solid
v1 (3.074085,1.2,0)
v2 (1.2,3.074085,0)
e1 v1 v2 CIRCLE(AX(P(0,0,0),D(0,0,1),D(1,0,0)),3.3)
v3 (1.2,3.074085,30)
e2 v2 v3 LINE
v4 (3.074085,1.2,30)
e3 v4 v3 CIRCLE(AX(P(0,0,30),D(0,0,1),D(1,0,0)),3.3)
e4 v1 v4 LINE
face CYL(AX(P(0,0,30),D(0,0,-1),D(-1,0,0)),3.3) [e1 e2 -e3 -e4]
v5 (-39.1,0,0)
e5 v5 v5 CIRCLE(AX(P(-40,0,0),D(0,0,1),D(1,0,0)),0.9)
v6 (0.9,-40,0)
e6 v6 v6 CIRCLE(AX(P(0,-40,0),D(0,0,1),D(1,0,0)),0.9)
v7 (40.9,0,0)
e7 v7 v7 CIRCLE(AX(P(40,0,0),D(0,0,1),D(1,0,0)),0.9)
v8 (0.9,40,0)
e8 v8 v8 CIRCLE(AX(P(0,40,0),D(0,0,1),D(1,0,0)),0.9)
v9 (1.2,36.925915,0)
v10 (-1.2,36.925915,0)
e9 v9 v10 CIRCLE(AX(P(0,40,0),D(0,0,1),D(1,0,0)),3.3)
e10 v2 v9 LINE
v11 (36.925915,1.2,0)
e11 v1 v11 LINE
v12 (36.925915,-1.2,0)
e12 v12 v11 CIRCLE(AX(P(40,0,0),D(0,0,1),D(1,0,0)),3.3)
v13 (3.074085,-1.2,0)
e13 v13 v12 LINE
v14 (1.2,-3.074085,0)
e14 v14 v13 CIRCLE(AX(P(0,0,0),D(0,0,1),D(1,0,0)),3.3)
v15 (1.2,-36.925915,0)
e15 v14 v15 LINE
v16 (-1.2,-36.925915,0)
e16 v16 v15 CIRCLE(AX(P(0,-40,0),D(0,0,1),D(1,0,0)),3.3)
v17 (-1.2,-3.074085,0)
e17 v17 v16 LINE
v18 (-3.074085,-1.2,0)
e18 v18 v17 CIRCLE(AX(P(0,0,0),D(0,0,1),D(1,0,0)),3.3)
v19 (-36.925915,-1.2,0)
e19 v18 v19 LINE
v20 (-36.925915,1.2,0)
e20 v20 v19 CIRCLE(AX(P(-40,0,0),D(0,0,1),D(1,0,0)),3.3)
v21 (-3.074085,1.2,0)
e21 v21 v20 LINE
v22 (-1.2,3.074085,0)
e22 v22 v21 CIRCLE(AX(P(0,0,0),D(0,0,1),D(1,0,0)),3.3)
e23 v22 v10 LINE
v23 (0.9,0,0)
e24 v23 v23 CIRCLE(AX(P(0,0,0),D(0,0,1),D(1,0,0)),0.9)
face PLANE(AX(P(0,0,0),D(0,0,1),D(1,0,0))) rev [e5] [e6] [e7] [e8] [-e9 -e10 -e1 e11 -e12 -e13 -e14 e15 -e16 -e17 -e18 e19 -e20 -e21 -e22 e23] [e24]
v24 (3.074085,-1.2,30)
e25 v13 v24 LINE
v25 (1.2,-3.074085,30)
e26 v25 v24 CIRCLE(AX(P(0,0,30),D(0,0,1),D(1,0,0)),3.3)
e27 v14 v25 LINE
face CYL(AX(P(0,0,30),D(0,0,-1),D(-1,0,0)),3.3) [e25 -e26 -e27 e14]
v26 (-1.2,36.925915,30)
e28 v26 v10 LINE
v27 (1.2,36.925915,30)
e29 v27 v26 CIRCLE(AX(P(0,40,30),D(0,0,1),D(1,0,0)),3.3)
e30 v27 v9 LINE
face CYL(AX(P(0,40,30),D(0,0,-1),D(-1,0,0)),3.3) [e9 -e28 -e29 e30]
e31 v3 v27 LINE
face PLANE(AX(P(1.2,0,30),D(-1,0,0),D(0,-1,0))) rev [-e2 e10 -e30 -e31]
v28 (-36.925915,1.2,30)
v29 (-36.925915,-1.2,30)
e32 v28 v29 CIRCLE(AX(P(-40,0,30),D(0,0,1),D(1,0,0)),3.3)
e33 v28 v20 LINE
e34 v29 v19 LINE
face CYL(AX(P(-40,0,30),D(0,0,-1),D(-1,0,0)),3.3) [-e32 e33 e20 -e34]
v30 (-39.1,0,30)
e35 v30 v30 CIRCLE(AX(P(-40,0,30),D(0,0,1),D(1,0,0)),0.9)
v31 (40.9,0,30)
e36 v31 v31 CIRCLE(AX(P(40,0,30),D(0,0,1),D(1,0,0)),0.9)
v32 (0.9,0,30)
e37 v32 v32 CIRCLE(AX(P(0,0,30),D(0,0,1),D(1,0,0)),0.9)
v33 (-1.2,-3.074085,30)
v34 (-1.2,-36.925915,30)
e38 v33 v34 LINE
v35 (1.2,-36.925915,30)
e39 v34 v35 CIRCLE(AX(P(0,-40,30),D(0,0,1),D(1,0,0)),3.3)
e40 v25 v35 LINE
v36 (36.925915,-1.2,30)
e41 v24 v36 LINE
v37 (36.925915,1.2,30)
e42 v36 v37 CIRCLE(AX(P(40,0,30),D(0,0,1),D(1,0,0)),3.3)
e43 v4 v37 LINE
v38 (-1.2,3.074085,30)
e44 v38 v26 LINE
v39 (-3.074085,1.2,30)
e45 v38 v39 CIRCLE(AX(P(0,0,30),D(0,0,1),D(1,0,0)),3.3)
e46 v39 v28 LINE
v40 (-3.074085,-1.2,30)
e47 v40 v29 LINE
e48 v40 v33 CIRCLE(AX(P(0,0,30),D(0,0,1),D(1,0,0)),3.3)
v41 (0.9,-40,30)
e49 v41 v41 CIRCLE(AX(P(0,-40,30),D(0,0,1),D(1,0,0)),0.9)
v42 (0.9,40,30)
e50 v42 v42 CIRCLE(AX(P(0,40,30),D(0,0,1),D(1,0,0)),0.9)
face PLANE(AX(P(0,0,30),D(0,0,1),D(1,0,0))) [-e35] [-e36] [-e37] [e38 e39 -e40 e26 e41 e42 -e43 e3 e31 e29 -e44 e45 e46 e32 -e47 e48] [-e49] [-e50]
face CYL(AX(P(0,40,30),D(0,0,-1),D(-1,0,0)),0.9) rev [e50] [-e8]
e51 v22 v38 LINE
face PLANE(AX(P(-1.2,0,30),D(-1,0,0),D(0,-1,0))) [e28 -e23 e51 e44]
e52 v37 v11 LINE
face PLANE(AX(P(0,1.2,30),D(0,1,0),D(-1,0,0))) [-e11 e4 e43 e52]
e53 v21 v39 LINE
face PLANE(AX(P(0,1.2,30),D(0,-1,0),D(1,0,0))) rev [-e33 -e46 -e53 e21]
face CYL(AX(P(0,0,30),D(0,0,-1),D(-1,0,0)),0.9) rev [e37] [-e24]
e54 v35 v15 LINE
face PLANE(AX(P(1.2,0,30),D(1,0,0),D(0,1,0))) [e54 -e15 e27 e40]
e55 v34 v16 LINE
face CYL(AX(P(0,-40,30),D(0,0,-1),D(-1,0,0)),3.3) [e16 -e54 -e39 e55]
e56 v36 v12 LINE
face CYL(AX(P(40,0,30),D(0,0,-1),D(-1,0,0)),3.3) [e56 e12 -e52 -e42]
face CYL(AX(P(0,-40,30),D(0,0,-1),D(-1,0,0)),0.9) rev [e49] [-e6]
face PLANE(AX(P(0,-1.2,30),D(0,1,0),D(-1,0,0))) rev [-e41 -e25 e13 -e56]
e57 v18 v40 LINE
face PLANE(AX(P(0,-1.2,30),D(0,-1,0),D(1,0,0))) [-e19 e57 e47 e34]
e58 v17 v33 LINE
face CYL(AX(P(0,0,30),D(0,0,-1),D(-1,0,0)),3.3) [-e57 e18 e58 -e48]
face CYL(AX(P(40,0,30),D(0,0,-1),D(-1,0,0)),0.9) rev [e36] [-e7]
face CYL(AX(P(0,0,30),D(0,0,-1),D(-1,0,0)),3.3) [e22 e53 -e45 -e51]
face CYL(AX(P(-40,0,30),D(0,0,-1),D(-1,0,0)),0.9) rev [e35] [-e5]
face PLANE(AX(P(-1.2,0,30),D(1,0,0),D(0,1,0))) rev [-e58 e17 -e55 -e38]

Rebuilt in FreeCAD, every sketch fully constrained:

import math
import FreeCAD as App
import Part
import Sketcher
Q = App.Units.Quantity

doc = App.newDocument("Part")
params = doc.addObject("Spreadsheet::Sheet", "Params")
for row, (alias, value) in enumerate([
    ("sketch1_radius", "3.3 mm"),
    ("pad1_length", "30 mm"),
    ("sketch2_diameter", "1.8 mm"),
    ("pocket1_length", "30 mm"),
], start=1):
    params.set(f"A{row}", alias)
    params.set(f"B{row}", "=" + value)
    params.setAlias(f"B{row}", alias)

body = doc.addObject("PartDesign::Body", "Body")

sketch1 = doc.addObject("Sketcher::SketchObject", "Sketch")
body.addObject(sketch1)
sketch1.AttachmentSupport = (doc.XY_Plane, [""])
sketch1.MapMode = "FlatFace"
sketch1.addGeometry([
    Part.ArcOfCircle(Part.Circle(App.Vector(0, 0, 0), App.Vector(0, 0, 1), 3.3), math.radians(-158.676314), math.radians(-111.323686)),
    Part.LineSegment(App.Vector(-1.2, -3.074085, 0), App.Vector(-1.2, -36.925915, 0)),
    Part.ArcOfCircle(Part.Circle(App.Vector(0, -40, 0), App.Vector(0, 0, 1), 3.3), math.radians(111.323686), math.radians(360)),
    Part.ArcOfCircle(Part.Circle(App.Vector(0, -40, 0), App.Vector(0, 0, 1), 3.3), math.radians(0), math.radians(68.676314)),
    Part.LineSegment(App.Vector(1.2, -36.925915, 0), App.Vector(1.2, -3.074085, 0)),
    Part.ArcOfCircle(Part.Circle(App.Vector(0, 0, 0), App.Vector(0, 0, 1), 3.3), math.radians(-68.676314), math.radians(-21.323686)),
    Part.LineSegment(App.Vector(3.074085, -1.2, 0), App.Vector(36.925915, -1.2, 0)),
    Part.ArcOfCircle(Part.Circle(App.Vector(40, 0, 0), App.Vector(0, 0, 1), 3.3), math.radians(-158.676314), math.radians(0)),
    Part.ArcOfCircle(Part.Circle(App.Vector(40, 0, 0), App.Vector(0, 0, 1), 3.3), math.radians(0), math.radians(158.676314)),
    Part.LineSegment(App.Vector(36.925915, 1.2, 0), App.Vector(3.074085, 1.2, 0)),
    Part.ArcOfCircle(Part.Circle(App.Vector(0, 0, 0), App.Vector(0, 0, 1), 3.3), math.radians(21.323686), math.radians(68.676314)),
    Part.LineSegment(App.Vector(1.2, 3.074085, 0), App.Vector(1.2, 36.925915, 0)),
    Part.ArcOfCircle(Part.Circle(App.Vector(0, 40, 0), App.Vector(0, 0, 1), 3.3), math.radians(-68.676314), math.radians(0)),
    Part.ArcOfCircle(Part.Circle(App.Vector(0, 40, 0), App.Vector(0, 0, 1), 3.3), math.radians(0), math.radians(248.676314)),
    Part.LineSegment(App.Vector(-1.2, 36.925915, 0), App.Vector(-1.2, 3.074085, 0)),
    Part.ArcOfCircle(Part.Circle(App.Vector(0, 0, 0), App.Vector(0, 0, 1), 3.3), math.radians(111.323686), math.radians(158.676314)),
    Part.LineSegment(App.Vector(-3.074085, 1.2, 0), App.Vector(-36.925915, 1.2, 0)),
    Part.ArcOfCircle(Part.Circle(App.Vector(-40, 0, 0), App.Vector(0, 0, 1), 3.3), math.radians(21.323686), math.radians(338.676314)),
    Part.LineSegment(App.Vector(-36.925915, -1.2, 0), App.Vector(-3.074085, -1.2, 0)),
], False)
sketch1.addConstraint([
    Sketcher.Constraint("Coincident", 0, 2, 1, 1),
    Sketcher.Constraint("Coincident", 1, 2, 2, 1),
    Sketcher.Constraint("Tangent", 2, 2, 3, 1),
    Sketcher.Constraint("Coincident", 3, 2, 4, 1),
    Sketcher.Constraint("Coincident", 4, 2, 5, 1),
    Sketcher.Constraint("Coincident", 5, 2, 6, 1),
    Sketcher.Constraint("Coincident", 6, 2, 7, 1),
    Sketcher.Constraint("Tangent", 7, 2, 8, 1),
    Sketcher.Constraint("Coincident", 8, 2, 9, 1),
    Sketcher.Constraint("Coincident", 9, 2, 10, 1),
    Sketcher.Constraint("Coincident", 10, 2, 11, 1),
    Sketcher.Constraint("Coincident", 11, 2, 12, 1),
    Sketcher.Constraint("Tangent", 12, 2, 13, 1),
    Sketcher.Constraint("Coincident", 13, 2, 14, 1),
    Sketcher.Constraint("Coincident", 14, 2, 15, 1),
    Sketcher.Constraint("Coincident", 15, 2, 16, 1),
    Sketcher.Constraint("Coincident", 16, 2, 17, 1),
    Sketcher.Constraint("Coincident", 17, 2, 18, 1),
    Sketcher.Constraint("Coincident", 18, 2, 0, 1),
    Sketcher.Constraint("Vertical", 1),
    Sketcher.Constraint("Vertical", 4),
    Sketcher.Constraint("Horizontal", 6),
    Sketcher.Constraint("Horizontal", 9),
    Sketcher.Constraint("Vertical", 11),
    Sketcher.Constraint("Vertical", 14),
    Sketcher.Constraint("Horizontal", 16),
    Sketcher.Constraint("Horizontal", 18),
    Sketcher.Constraint("Coincident", 0, 3, -1, 1),
    Sketcher.Constraint("Coincident", 5, 3, -1, 1),
    Sketcher.Constraint("Coincident", 10, 3, -1, 1),
    Sketcher.Constraint("Coincident", 15, 3, -1, 1),
    Sketcher.Constraint("Equal", 0, 2),
    Sketcher.Constraint("Equal", 2, 3),
    Sketcher.Constraint("Equal", 3, 5),
    Sketcher.Constraint("Equal", 5, 7),
    Sketcher.Constraint("Equal", 7, 8),
    Sketcher.Constraint("Equal", 8, 10),
    Sketcher.Constraint("Equal", 10, 12),
    Sketcher.Constraint("Equal", 12, 13),
    Sketcher.Constraint("Equal", 13, 15),
    Sketcher.Constraint("Equal", 15, 17),
    Sketcher.Constraint("Symmetric", 2, 3, 12, 3, -1, 1),
    Sketcher.Constraint("Symmetric", 7, 3, 17, 3, -1, 1),
    Sketcher.Constraint("Symmetric", 1, 2, 3, 2, -2),
    Sketcher.Constraint("Symmetric", 8, 2, 16, 2, -2),
    Sketcher.Constraint("PointOnObject", 7, 2, -1),
    Sketcher.Constraint("Horizontal", 3, 3, 2, 2),
    Sketcher.Constraint("Horizontal", 13, 3, 12, 2),
    Sketcher.Constraint("Horizontal", 11, 2, 13, 2),
    Sketcher.Constraint("Horizontal", 6, 2, 17, 2),
    Sketcher.Constraint("Vertical", 6, 2, 8, 2),
    Sketcher.Constraint("Vertical", 4, 2, 10, 2),
    Sketcher.Constraint("Equal", 18, 1),
    Sketcher.Constraint("Radius", 0, Q("3.3 mm")),
    Sketcher.Constraint("DistanceY", 2, 3, -1, 1, Q("40 mm")),
    Sketcher.Constraint("DistanceX", -1, 1, 7, 3, Q("40 mm")),
    Sketcher.Constraint("DistanceX", 0, 2, -1, 1, Q("1.2 mm")),
])
sketch1.setExpression("Constraints[53]", "Params.sketch1_radius")
pad1 = doc.addObject("PartDesign::Pad", "Pad")
body.addObject(pad1)
pad1.Profile = sketch1
pad1.setExpression("Length", "Params.pad1_length")

sketch2 = doc.addObject("Sketcher::SketchObject", "Sketch001")
body.addObject(sketch2)
sketch2.AttachmentSupport = (doc.XY_Plane, [""])
sketch2.MapMode = "FlatFace"
sketch2.addGeometry([
    Part.Circle(App.Vector(0, 0, 0), App.Vector(0, 0, 1), 0.9),
    Part.Circle(App.Vector(0, 40, 0), App.Vector(0, 0, 1), 0.9),
    Part.Circle(App.Vector(40, 0, 0), App.Vector(0, 0, 1), 0.9),
    Part.Circle(App.Vector(0, -40, 0), App.Vector(0, 0, 1), 0.9),
    Part.Circle(App.Vector(-40, 0, 0), App.Vector(0, 0, 1), 0.9),
], False)
sketch2.addConstraint([
    Sketcher.Constraint("Coincident", 0, 3, -1, 1),
    Sketcher.Constraint("Equal", 0, 1),
    Sketcher.Constraint("Equal", 1, 2),
    Sketcher.Constraint("Equal", 2, 3),
    Sketcher.Constraint("Equal", 3, 4),
    Sketcher.Constraint("Symmetric", 1, 3, 3, 3, -1, 1),
    Sketcher.Constraint("Symmetric", 2, 3, 4, 3, -1, 1),
    Sketcher.Constraint("PointOnObject", 1, 3, -2),
    Sketcher.Constraint("PointOnObject", 2, 3, -1),
    Sketcher.Constraint("Diameter", 0, Q("1.8 mm")),
    Sketcher.Constraint("DistanceY", -1, 1, 1, 3, Q("40 mm")),
    Sketcher.Constraint("DistanceX", -1, 1, 2, 3, Q("40 mm")),
])
sketch2.setExpression("Constraints[9]", "Params.sketch2_diameter")
pocket1 = doc.addObject("PartDesign::Pocket", "Pocket")
body.addObject(pocket1)
pocket1.Profile = sketch2
pocket1.setExpression("Length", "Params.pocket1_length")
pocket1.Reversed = True

doc.recompute()
